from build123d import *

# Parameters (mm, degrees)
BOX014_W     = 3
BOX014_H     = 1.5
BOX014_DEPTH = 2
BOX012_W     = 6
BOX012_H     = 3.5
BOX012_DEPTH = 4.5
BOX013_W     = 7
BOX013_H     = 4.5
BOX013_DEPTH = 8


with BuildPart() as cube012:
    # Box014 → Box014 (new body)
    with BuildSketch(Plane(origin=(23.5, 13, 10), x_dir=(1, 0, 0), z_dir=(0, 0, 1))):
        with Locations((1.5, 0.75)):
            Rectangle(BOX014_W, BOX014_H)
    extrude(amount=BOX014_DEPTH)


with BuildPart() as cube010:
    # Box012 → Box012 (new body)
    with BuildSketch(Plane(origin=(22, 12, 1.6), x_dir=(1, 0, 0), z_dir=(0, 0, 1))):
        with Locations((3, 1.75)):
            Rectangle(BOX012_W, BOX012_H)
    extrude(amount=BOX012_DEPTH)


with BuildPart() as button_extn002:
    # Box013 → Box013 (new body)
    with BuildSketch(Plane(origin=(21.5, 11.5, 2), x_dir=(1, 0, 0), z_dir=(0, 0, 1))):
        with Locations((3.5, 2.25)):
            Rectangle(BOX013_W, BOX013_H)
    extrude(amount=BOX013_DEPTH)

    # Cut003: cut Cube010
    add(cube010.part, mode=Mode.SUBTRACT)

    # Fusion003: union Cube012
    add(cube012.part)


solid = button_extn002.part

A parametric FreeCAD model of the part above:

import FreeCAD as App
import Part
import Sketcher

V = App.Vector
Q = App.Units.Quantity


def add_polygon(sketch, points):
    """Adds a closed chain of lines whose ends are joined by coincident constraints."""
    first, n = sketch.GeometryCount, len(points)
    for a, b in zip(points, points[1:] + points[:1]):
        sketch.addGeometry(Part.LineSegment(App.Vector(*a, 0), App.Vector(*b, 0)), False)
    for i in range(n):
        sketch.addConstraint(Sketcher.Constraint("Coincident", first + i, 2, first + (i + 1) % n, 1))

doc = App.newDocument("Part")
params = doc.addObject("Spreadsheet::Sheet", "Params")
for row, (alias, value) in enumerate([
    ("sketch1_width", "3 mm"),
    ("sketch1_height", "1.5 mm"),
    ("pad1_length", "2 mm"),
    ("sketch2_width", "6 mm"),
    ("sketch2_height", "3.5 mm"),
    ("pad2_length", "4.5 mm"),
    ("sketch3_width", "7 mm"),
    ("sketch3_height", "4.5 mm"),
    ("pad3_length", "8 mm"),
], start=1):
    params.set(f"A{row}", alias)
    params.set(f"B{row}", "=" + value)
    params.setAlias(f"B{row}", alias)

body = doc.addObject("PartDesign::Body", "Body")

sketch1 = body.newObject("Sketcher::SketchObject", "Sketch")
sketch1.AttachmentSupport = (doc.getObject("XY_Plane"), [""])
sketch1.MapMode = "FlatFace"
sketch1.AttachmentOffset = App.Placement(V(0, 0, 10), App.Rotation())
add_polygon(sketch1, [(23.5, 14.5), (23.5, 13), (26.5, 13), (26.5, 14.5)])
sketch1.addConstraint([
    Sketcher.Constraint("Vertical", 0),
    Sketcher.Constraint("Horizontal", 1),
    Sketcher.Constraint("Vertical", 2),
    Sketcher.Constraint("Horizontal", 3),
    Sketcher.Constraint("DistanceX", 1, 1, 1, 2, Q("3 mm")),
    Sketcher.Constraint("DistanceY", 0, 2, 0, 1, Q("1.5 mm")),
    Sketcher.Constraint("DistanceY", -1, 1, 0, 2, Q("13 mm")),
    Sketcher.Constraint("DistanceX", -1, 1, 0, 2, Q("23.5 mm")),
])
sketch1.setExpression("Constraints[8]", "Params.sketch1_width")
sketch1.setExpression("Constraints[9]", "Params.sketch1_height")
pad1 = body.newObject("PartDesign::Pad", "Pad")
pad1.Profile = sketch1
pad1.setExpression("Length", "Params.pad1_length")
body2 = doc.addObject("PartDesign::Body", "Body001")

sketch2 = body2.newObject("Sketcher::SketchObject", "Sketch001")
sketch2.AttachmentSupport = (doc.getObject("XY_Plane001"), [""])
sketch2.MapMode = "FlatFace"
sketch2.AttachmentOffset = App.Placement(V(0, 0, 1.6), App.Rotation())
add_polygon(sketch2, [(22, 15.5), (22, 12), (28, 12), (28, 15.5)])
sketch2.addConstraint([
    Sketcher.Constraint("Vertical", 0),
    Sketcher.Constraint("Horizontal", 1),
    Sketcher.Constraint("Vertical", 2),
    Sketcher.Constraint("Horizontal", 3),
    Sketcher.Constraint("DistanceX", 1, 1, 1, 2, Q("6 mm")),
    Sketcher.Constraint("DistanceY", 0, 2, 0, 1, Q("3.5 mm")),
    Sketcher.Constraint("DistanceX", -1, 1, 0, 2, Q("22 mm")),
    Sketcher.Constraint("DistanceY", -1, 1, 0, 2, Q("12 mm")),
])
sketch2.setExpression("Constraints[8]", "Params.sketch2_width")
sketch2.setExpression("Constraints[9]", "Params.sketch2_height")
pad2 = body2.newObject("PartDesign::Pad", "Pad001")
pad2.Profile = sketch2
pad2.setExpression("Length", "Params.pad2_length")
body3 = doc.addObject("PartDesign::Body", "Body002")

sketch3 = body3.newObject("Sketcher::SketchObject", "Sketch002")
sketch3.AttachmentSupport = (doc.getObject("XY_Plane002"), [""])
sketch3.MapMode = "FlatFace"
sketch3.AttachmentOffset = App.Placement(V(0, 0, 2), App.Rotation())
add_polygon(sketch3, [(21.5, 16), (21.5, 11.5), (28.5, 11.5), (28.5, 16)])
sketch3.addConstraint([
    Sketcher.Constraint("Vertical", 0),
    Sketcher.Constraint("Horizontal", 1),
    Sketcher.Constraint("Vertical", 2),
    Sketcher.Constraint("Horizontal", 3),
    Sketcher.Constraint("DistanceX", 1, 1, 1, 2, Q("7 mm")),
    Sketcher.Constraint("DistanceY", 0, 2, 0, 1, Q("4.5 mm")),
    Sketcher.Constraint("DistanceY", -1, 1, 2, 2, Q("16 mm")),
    Sketcher.Constraint("DistanceX", -1, 1, 0, 2, Q("21.5 mm")),
])
sketch3.setExpression("Constraints[8]", "Params.sketch3_width")
sketch3.setExpression("Constraints[9]", "Params.sketch3_height")
pad3 = body3.newObject("PartDesign::Pad", "Pad002")
pad3.Profile = sketch3
pad3.setExpression("Length", "Params.pad3_length")
doc.recompute()

boolean = body3.newObject("PartDesign::Boolean", "Boolean")
boolean.Type = "Cut"
boolean.addObjects([body2])
doc.recompute()

boolean2 = body3.newObject("PartDesign::Boolean", "Boolean001")
boolean2.Type = "Fuse"
boolean2.addObjects([body])

doc.recompute()
